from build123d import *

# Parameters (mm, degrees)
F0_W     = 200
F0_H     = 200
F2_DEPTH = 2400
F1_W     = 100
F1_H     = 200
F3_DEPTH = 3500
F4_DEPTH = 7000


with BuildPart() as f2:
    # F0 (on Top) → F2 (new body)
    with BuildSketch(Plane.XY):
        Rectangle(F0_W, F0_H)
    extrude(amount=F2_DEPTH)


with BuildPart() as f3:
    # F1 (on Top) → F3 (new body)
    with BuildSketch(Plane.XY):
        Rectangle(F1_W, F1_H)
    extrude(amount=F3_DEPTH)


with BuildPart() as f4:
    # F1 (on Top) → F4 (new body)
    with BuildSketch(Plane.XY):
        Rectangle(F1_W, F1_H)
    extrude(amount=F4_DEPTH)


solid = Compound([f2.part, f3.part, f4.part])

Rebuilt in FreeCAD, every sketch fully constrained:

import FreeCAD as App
import Part
import Sketcher


def add_polygon(sketch, points):
    """Adds a closed chain of lines whose ends are joined by coincident constraints."""
    first, n = sketch.GeometryCount, len(points)
    for a, b in zip(points, points[1:] + points[:1]):
        sketch.addGeometry(Part.LineSegment(App.Vector(*a, 0), App.Vector(*b, 0)), False)
    for i in range(n):
        sketch.addConstraint(Sketcher.Constraint("Coincident", first + i, 2, first + (i + 1) % n, 1))

doc = App.newDocument("Part")
params = doc.addObject("Spreadsheet::Sheet", "Params")
for row, (alias, value) in enumerate([
    ("sketch1_width", "200 mm"),
    ("pad1_length", "2400 mm"),
    ("sketch2_width", "100 mm"),
    ("sketch2_height", "200 mm"),
    ("pad2_length", "3500 mm"),
    ("sketch3_width", "100 mm"),
    ("sketch3_height", "200 mm"),
    ("pad3_length", "7000 mm"),
], start=1):
    params.set(f"A{row}", alias)
    params.set(f"B{row}", "=" + value)
    params.setAlias(f"B{row}", alias)

body = doc.addObject("PartDesign::Body", "Body")

# Sketch on XY plane
sketch1 = body.newObject("Sketcher::SketchObject", "Sketch")
sketch1.AttachmentSupport = (doc.getObject("XY_Plane"), [""])
sketch1.MapMode = "FlatFace"
add_polygon(sketch1, [(-100, 100), (-100, -100), (100, -100), (100, 100)])  # lines 0-3
sketch1.addConstraint([
    Sketcher.Constraint("Vertical", 0),
    Sketcher.Constraint("Horizontal", 1),
    Sketcher.Constraint("Vertical", 2),
    Sketcher.Constraint("Horizontal", 3),
    Sketcher.Constraint("Symmetric", 0, 2, 2, 2, -1, 1),
    Sketcher.Constraint("Equal", 3, 0),
    Sketcher.Constraint("DistanceX", 1, 1, 1, 2, 200.0),
])
sketch1.setExpression("Constraints[10]", "Params.sketch1_width")
pad1 = body.newObject("PartDesign::Pad", "Pad")
pad1.Profile = sketch1
pad1.setExpression("Length", "Params.pad1_length")
body2 = doc.addObject("PartDesign::Body", "Body001")

# Sketch on XY plane
sketch2 = body2.newObject("Sketcher::SketchObject", "Sketch001")
sketch2.AttachmentSupport = (doc.getObject("XY_Plane001"), [""])
sketch2.MapMode = "FlatFace"
add_polygon(sketch2, [(-50, 100), (-50, -100), (50, -100), (50, 100)])  # lines 0-3
sketch2.addConstraint([
    Sketcher.Constraint("Vertical", 0),
    Sketcher.Constraint("Horizontal", 1),
    Sketcher.Constraint("Vertical", 2),
    Sketcher.Constraint("Horizontal", 3),
    Sketcher.Constraint("Symmetric", 0, 2, 2, 2, -1, 1),
    Sketcher.Constraint("DistanceX", 1, 1, 1, 2, 100.0),
    Sketcher.Constraint("DistanceY", 0, 2, 0, 1, 200.0),
])
sketch2.setExpression("Constraints[9]", "Params.sketch2_width")
sketch2.setExpression("Constraints[10]", "Params.sketch2_height")
pad2 = body2.newObject("PartDesign::Pad", "Pad001")
pad2.Profile = sketch2
pad2.setExpression("Length", "Params.pad2_length")
body3 = doc.addObject("PartDesign::Body", "Body002")

# Sketch on XY plane
sketch3 = body3.newObject("Sketcher::SketchObject", "Sketch002")
sketch3.AttachmentSupport = (doc.getObject("XY_Plane002"), [""])
sketch3.MapMode = "FlatFace"
add_polygon(sketch3, [(-50, 100), (-50, -100), (50, -100), (50, 100)])  # lines 0-3
sketch3.addConstraint([
    Sketcher.Constraint("Vertical", 0),
    Sketcher.Constraint("Horizontal", 1),
    Sketcher.Constraint("Vertical", 2),
    Sketcher.Constraint("Horizontal", 3),
    Sketcher.Constraint("Symmetric", 0, 2, 2, 2, -1, 1),
    Sketcher.Constraint("DistanceX", 1, 1, 1, 2, 100.0),
    Sketcher.Constraint("DistanceY", 0, 2, 0, 1, 200.0),
])
sketch3.setExpression("Constraints[9]", "Params.sketch3_width")
sketch3.setExpression("Constraints[10]", "Params.sketch3_height")
pad3 = body3.newObject("PartDesign::Pad", "Pad002")
pad3.Profile = sketch3
pad3.setExpression("Length", "Params.pad3_length")

doc.recompute()
